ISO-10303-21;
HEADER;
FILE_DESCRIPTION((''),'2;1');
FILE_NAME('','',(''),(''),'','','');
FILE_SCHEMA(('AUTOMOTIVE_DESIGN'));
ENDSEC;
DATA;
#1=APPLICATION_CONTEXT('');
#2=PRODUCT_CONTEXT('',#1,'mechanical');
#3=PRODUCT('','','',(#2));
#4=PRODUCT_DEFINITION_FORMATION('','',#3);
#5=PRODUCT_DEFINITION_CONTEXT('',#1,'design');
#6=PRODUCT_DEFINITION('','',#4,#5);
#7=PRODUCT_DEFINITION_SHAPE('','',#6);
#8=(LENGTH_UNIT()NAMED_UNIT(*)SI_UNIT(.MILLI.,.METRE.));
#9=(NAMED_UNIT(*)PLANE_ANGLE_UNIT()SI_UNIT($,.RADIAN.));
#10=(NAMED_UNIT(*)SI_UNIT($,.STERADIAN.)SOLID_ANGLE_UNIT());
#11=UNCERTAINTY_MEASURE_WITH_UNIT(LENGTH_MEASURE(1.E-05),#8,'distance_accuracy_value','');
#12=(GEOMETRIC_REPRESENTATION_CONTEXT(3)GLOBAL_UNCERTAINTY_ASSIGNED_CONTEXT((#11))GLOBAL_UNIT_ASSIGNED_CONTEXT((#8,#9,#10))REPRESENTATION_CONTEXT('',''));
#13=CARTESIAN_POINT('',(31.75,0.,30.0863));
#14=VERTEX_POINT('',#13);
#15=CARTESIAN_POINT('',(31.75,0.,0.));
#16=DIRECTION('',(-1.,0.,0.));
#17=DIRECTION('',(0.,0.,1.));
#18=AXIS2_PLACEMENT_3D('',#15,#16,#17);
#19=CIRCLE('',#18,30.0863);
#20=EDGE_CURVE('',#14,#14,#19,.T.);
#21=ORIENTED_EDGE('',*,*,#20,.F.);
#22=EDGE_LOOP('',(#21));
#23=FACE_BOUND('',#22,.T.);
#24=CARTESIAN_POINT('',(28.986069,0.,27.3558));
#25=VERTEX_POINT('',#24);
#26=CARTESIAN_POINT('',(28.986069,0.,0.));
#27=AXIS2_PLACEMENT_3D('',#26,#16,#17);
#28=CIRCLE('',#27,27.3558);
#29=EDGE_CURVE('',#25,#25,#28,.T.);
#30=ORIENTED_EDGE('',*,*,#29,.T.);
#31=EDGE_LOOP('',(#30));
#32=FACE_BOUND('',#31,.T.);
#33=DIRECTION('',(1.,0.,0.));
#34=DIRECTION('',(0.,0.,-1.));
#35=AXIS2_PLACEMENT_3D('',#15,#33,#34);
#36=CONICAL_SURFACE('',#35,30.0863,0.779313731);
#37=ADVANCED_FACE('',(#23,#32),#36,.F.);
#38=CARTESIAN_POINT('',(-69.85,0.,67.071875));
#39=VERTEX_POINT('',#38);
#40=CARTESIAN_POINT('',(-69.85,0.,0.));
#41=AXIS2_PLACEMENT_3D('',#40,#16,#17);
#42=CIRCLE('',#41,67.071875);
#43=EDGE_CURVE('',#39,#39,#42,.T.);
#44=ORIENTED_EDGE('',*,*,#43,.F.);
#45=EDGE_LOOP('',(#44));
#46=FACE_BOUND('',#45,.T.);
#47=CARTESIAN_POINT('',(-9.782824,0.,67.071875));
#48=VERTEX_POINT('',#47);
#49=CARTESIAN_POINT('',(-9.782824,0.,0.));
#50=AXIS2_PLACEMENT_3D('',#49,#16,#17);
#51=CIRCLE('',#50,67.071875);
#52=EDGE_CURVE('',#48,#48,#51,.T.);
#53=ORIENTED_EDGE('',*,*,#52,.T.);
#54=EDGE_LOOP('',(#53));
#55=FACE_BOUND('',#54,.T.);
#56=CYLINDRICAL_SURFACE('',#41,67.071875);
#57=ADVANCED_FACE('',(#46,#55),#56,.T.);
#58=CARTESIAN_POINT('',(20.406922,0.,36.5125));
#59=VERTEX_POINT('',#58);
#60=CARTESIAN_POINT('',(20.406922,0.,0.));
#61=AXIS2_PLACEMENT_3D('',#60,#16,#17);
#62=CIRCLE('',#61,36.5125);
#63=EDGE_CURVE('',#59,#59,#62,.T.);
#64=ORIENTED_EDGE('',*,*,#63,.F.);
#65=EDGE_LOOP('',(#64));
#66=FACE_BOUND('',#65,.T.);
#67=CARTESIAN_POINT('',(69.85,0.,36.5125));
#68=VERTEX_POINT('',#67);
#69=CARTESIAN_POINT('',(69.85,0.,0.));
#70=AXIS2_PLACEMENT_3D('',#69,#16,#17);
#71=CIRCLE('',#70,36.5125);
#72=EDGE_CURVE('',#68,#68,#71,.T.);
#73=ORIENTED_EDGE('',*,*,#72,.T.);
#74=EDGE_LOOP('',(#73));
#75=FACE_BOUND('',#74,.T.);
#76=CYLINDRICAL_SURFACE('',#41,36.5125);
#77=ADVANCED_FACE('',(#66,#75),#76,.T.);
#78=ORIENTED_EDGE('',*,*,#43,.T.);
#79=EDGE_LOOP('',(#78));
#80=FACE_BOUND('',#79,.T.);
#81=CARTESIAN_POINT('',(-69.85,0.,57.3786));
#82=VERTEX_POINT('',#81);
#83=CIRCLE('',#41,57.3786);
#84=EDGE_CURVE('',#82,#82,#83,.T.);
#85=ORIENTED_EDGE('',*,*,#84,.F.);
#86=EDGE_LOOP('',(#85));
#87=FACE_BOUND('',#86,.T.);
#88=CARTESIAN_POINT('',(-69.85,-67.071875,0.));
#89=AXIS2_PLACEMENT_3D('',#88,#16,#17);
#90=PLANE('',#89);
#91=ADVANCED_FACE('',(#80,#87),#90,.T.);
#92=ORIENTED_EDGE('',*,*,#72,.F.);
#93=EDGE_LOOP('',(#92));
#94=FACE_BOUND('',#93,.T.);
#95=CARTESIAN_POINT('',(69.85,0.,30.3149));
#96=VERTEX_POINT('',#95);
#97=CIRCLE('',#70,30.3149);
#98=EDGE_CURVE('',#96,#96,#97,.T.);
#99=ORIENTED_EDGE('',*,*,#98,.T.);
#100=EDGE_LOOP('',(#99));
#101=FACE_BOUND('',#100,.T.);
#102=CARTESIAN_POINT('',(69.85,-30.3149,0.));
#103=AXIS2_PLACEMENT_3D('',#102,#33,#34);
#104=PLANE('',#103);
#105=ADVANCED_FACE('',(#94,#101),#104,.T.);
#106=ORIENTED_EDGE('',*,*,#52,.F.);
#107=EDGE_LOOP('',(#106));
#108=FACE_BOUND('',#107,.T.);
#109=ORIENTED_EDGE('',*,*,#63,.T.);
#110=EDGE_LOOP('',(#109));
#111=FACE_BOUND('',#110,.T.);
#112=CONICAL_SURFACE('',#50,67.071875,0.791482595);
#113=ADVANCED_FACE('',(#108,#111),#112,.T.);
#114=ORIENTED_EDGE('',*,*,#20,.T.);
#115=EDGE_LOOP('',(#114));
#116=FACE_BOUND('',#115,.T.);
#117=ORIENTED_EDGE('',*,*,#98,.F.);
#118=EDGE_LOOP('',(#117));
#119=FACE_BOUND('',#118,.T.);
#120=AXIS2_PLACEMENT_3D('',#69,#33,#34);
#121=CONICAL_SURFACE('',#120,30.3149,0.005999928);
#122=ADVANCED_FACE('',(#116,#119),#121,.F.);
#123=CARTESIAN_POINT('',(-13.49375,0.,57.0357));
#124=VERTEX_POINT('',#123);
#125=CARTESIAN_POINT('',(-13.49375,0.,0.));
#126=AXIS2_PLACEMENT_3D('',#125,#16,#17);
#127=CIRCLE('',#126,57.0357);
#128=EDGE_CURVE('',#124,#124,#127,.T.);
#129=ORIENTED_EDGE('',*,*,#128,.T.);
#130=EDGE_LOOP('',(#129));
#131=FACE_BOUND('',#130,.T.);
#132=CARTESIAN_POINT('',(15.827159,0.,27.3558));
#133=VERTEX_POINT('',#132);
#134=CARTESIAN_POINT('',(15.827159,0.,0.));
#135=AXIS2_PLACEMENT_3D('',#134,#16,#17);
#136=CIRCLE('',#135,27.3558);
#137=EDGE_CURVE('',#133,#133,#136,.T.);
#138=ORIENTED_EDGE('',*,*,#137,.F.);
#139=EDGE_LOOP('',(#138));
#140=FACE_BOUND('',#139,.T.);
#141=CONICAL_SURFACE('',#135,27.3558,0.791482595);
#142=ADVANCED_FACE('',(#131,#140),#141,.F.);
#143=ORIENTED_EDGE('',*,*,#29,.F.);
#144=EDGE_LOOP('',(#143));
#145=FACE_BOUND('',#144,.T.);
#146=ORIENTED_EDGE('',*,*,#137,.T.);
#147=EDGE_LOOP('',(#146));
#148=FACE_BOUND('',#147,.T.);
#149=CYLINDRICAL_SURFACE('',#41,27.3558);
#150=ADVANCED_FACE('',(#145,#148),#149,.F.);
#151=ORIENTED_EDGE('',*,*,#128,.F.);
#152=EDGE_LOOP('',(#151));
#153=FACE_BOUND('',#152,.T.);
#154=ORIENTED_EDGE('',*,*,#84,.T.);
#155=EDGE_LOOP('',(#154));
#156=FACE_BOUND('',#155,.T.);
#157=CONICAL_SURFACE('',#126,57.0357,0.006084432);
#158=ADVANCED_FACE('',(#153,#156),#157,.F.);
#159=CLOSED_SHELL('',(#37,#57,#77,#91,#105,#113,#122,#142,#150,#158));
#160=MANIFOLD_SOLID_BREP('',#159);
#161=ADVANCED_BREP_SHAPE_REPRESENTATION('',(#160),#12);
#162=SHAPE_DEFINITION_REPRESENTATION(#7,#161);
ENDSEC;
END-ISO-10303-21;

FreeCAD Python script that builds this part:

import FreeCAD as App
import Part
import Sketcher
from FreeCAD import Vector
Q = App.Units.Quantity


def add_polygon(sketch, points):
    """Adds a closed chain of lines whose ends are joined by coincident constraints."""
    first, n = sketch.GeometryCount, len(points)
    for a, b in zip(points, points[1:] + points[:1]):
        sketch.addGeometry(Part.LineSegment(App.Vector(*a, 0), App.Vector(*b, 0)), False)
    for i in range(n):
        sketch.addConstraint(Sketcher.Constraint("Coincident", first + i, 2, first + (i + 1) % n, 1))

doc = App.newDocument("Part")
body = doc.addObject("PartDesign::Body", "Body")

# Sketch on XY plane
sketch1 = body.newObject("Sketcher::SketchObject", "Sketch")
sketch1.AttachmentSupport = (doc.getObject("XY_Plane"), [""])
sketch1.MapMode = "FlatFace"
add_polygon(sketch1, [(15.8, -27.4), (-13.5, -57), (-69.8, -57.4), (-69.8, -67.1), (-9.8, -67.1), (20.4, -36.5), (69.8, -36.5), (69.8, -30.3), (31.8, -30.1), (29, -27.4)])  # lines 0-9
sketch1.addConstraint([
    Sketcher.Constraint("Vertical", 2),
    Sketcher.Constraint("Horizontal", 3),
    Sketcher.Constraint("Horizontal", 5),
    Sketcher.Constraint("Vertical", 6),
    Sketcher.Constraint("Horizontal", 9),
    Sketcher.Constraint("Parallel", 0, 4),
    Sketcher.Constraint("Perpendicular", 4, 8),
    Sketcher.Constraint("DistanceX", 1, 2, 5, 2, Q("5.5 in")),
    Sketcher.Constraint("DistanceX", 7, 2, 6, 2, Q("1.5 in")),
    Sketcher.Constraint("DistanceY", 6, 1, 6, 2, Q("0.244 in")),
    Sketcher.Constraint("DistanceX", 1, 2, -1, 1, Q("2.75 in")),
    Sketcher.Constraint("DistanceX", 0, 2, -1, 1, Q("0.53125 in")),
    Sketcher.Constraint("DistanceY", 1, 2, -1, 1, Q("2.259 in")),
    Sketcher.Constraint("DistanceY", 2, 2, -1, 1, Q("2.640625 in")),
    Sketcher.Constraint("DistanceY", 4, 2, -1, 1, Q("1.4375 in")),
    Sketcher.Constraint("DistanceY", 8, 2, -1, 1, Q("1.077 in")),
    Sketcher.Constraint("DistanceY", 0, 2, 4, 2, Q("0.808 in")),
    Sketcher.Constraint("DistanceY", 4, 2, 7, 2, Q("0.253 in")),
    Sketcher.Constraint("DistanceX", 9, 2, 9, 1, Q("13.15891 mm")),
    Sketcher.Constraint("DistanceX", 3, 1, 3, 2, Q("60.067176 mm")),
])
revolution = body.newObject("PartDesign::Revolution", "Revolution")
revolution.Profile = sketch1
revolution.ReferenceAxis = (sketch1, ["H_Axis"])
revolution.Angle = 360

doc.recompute()
